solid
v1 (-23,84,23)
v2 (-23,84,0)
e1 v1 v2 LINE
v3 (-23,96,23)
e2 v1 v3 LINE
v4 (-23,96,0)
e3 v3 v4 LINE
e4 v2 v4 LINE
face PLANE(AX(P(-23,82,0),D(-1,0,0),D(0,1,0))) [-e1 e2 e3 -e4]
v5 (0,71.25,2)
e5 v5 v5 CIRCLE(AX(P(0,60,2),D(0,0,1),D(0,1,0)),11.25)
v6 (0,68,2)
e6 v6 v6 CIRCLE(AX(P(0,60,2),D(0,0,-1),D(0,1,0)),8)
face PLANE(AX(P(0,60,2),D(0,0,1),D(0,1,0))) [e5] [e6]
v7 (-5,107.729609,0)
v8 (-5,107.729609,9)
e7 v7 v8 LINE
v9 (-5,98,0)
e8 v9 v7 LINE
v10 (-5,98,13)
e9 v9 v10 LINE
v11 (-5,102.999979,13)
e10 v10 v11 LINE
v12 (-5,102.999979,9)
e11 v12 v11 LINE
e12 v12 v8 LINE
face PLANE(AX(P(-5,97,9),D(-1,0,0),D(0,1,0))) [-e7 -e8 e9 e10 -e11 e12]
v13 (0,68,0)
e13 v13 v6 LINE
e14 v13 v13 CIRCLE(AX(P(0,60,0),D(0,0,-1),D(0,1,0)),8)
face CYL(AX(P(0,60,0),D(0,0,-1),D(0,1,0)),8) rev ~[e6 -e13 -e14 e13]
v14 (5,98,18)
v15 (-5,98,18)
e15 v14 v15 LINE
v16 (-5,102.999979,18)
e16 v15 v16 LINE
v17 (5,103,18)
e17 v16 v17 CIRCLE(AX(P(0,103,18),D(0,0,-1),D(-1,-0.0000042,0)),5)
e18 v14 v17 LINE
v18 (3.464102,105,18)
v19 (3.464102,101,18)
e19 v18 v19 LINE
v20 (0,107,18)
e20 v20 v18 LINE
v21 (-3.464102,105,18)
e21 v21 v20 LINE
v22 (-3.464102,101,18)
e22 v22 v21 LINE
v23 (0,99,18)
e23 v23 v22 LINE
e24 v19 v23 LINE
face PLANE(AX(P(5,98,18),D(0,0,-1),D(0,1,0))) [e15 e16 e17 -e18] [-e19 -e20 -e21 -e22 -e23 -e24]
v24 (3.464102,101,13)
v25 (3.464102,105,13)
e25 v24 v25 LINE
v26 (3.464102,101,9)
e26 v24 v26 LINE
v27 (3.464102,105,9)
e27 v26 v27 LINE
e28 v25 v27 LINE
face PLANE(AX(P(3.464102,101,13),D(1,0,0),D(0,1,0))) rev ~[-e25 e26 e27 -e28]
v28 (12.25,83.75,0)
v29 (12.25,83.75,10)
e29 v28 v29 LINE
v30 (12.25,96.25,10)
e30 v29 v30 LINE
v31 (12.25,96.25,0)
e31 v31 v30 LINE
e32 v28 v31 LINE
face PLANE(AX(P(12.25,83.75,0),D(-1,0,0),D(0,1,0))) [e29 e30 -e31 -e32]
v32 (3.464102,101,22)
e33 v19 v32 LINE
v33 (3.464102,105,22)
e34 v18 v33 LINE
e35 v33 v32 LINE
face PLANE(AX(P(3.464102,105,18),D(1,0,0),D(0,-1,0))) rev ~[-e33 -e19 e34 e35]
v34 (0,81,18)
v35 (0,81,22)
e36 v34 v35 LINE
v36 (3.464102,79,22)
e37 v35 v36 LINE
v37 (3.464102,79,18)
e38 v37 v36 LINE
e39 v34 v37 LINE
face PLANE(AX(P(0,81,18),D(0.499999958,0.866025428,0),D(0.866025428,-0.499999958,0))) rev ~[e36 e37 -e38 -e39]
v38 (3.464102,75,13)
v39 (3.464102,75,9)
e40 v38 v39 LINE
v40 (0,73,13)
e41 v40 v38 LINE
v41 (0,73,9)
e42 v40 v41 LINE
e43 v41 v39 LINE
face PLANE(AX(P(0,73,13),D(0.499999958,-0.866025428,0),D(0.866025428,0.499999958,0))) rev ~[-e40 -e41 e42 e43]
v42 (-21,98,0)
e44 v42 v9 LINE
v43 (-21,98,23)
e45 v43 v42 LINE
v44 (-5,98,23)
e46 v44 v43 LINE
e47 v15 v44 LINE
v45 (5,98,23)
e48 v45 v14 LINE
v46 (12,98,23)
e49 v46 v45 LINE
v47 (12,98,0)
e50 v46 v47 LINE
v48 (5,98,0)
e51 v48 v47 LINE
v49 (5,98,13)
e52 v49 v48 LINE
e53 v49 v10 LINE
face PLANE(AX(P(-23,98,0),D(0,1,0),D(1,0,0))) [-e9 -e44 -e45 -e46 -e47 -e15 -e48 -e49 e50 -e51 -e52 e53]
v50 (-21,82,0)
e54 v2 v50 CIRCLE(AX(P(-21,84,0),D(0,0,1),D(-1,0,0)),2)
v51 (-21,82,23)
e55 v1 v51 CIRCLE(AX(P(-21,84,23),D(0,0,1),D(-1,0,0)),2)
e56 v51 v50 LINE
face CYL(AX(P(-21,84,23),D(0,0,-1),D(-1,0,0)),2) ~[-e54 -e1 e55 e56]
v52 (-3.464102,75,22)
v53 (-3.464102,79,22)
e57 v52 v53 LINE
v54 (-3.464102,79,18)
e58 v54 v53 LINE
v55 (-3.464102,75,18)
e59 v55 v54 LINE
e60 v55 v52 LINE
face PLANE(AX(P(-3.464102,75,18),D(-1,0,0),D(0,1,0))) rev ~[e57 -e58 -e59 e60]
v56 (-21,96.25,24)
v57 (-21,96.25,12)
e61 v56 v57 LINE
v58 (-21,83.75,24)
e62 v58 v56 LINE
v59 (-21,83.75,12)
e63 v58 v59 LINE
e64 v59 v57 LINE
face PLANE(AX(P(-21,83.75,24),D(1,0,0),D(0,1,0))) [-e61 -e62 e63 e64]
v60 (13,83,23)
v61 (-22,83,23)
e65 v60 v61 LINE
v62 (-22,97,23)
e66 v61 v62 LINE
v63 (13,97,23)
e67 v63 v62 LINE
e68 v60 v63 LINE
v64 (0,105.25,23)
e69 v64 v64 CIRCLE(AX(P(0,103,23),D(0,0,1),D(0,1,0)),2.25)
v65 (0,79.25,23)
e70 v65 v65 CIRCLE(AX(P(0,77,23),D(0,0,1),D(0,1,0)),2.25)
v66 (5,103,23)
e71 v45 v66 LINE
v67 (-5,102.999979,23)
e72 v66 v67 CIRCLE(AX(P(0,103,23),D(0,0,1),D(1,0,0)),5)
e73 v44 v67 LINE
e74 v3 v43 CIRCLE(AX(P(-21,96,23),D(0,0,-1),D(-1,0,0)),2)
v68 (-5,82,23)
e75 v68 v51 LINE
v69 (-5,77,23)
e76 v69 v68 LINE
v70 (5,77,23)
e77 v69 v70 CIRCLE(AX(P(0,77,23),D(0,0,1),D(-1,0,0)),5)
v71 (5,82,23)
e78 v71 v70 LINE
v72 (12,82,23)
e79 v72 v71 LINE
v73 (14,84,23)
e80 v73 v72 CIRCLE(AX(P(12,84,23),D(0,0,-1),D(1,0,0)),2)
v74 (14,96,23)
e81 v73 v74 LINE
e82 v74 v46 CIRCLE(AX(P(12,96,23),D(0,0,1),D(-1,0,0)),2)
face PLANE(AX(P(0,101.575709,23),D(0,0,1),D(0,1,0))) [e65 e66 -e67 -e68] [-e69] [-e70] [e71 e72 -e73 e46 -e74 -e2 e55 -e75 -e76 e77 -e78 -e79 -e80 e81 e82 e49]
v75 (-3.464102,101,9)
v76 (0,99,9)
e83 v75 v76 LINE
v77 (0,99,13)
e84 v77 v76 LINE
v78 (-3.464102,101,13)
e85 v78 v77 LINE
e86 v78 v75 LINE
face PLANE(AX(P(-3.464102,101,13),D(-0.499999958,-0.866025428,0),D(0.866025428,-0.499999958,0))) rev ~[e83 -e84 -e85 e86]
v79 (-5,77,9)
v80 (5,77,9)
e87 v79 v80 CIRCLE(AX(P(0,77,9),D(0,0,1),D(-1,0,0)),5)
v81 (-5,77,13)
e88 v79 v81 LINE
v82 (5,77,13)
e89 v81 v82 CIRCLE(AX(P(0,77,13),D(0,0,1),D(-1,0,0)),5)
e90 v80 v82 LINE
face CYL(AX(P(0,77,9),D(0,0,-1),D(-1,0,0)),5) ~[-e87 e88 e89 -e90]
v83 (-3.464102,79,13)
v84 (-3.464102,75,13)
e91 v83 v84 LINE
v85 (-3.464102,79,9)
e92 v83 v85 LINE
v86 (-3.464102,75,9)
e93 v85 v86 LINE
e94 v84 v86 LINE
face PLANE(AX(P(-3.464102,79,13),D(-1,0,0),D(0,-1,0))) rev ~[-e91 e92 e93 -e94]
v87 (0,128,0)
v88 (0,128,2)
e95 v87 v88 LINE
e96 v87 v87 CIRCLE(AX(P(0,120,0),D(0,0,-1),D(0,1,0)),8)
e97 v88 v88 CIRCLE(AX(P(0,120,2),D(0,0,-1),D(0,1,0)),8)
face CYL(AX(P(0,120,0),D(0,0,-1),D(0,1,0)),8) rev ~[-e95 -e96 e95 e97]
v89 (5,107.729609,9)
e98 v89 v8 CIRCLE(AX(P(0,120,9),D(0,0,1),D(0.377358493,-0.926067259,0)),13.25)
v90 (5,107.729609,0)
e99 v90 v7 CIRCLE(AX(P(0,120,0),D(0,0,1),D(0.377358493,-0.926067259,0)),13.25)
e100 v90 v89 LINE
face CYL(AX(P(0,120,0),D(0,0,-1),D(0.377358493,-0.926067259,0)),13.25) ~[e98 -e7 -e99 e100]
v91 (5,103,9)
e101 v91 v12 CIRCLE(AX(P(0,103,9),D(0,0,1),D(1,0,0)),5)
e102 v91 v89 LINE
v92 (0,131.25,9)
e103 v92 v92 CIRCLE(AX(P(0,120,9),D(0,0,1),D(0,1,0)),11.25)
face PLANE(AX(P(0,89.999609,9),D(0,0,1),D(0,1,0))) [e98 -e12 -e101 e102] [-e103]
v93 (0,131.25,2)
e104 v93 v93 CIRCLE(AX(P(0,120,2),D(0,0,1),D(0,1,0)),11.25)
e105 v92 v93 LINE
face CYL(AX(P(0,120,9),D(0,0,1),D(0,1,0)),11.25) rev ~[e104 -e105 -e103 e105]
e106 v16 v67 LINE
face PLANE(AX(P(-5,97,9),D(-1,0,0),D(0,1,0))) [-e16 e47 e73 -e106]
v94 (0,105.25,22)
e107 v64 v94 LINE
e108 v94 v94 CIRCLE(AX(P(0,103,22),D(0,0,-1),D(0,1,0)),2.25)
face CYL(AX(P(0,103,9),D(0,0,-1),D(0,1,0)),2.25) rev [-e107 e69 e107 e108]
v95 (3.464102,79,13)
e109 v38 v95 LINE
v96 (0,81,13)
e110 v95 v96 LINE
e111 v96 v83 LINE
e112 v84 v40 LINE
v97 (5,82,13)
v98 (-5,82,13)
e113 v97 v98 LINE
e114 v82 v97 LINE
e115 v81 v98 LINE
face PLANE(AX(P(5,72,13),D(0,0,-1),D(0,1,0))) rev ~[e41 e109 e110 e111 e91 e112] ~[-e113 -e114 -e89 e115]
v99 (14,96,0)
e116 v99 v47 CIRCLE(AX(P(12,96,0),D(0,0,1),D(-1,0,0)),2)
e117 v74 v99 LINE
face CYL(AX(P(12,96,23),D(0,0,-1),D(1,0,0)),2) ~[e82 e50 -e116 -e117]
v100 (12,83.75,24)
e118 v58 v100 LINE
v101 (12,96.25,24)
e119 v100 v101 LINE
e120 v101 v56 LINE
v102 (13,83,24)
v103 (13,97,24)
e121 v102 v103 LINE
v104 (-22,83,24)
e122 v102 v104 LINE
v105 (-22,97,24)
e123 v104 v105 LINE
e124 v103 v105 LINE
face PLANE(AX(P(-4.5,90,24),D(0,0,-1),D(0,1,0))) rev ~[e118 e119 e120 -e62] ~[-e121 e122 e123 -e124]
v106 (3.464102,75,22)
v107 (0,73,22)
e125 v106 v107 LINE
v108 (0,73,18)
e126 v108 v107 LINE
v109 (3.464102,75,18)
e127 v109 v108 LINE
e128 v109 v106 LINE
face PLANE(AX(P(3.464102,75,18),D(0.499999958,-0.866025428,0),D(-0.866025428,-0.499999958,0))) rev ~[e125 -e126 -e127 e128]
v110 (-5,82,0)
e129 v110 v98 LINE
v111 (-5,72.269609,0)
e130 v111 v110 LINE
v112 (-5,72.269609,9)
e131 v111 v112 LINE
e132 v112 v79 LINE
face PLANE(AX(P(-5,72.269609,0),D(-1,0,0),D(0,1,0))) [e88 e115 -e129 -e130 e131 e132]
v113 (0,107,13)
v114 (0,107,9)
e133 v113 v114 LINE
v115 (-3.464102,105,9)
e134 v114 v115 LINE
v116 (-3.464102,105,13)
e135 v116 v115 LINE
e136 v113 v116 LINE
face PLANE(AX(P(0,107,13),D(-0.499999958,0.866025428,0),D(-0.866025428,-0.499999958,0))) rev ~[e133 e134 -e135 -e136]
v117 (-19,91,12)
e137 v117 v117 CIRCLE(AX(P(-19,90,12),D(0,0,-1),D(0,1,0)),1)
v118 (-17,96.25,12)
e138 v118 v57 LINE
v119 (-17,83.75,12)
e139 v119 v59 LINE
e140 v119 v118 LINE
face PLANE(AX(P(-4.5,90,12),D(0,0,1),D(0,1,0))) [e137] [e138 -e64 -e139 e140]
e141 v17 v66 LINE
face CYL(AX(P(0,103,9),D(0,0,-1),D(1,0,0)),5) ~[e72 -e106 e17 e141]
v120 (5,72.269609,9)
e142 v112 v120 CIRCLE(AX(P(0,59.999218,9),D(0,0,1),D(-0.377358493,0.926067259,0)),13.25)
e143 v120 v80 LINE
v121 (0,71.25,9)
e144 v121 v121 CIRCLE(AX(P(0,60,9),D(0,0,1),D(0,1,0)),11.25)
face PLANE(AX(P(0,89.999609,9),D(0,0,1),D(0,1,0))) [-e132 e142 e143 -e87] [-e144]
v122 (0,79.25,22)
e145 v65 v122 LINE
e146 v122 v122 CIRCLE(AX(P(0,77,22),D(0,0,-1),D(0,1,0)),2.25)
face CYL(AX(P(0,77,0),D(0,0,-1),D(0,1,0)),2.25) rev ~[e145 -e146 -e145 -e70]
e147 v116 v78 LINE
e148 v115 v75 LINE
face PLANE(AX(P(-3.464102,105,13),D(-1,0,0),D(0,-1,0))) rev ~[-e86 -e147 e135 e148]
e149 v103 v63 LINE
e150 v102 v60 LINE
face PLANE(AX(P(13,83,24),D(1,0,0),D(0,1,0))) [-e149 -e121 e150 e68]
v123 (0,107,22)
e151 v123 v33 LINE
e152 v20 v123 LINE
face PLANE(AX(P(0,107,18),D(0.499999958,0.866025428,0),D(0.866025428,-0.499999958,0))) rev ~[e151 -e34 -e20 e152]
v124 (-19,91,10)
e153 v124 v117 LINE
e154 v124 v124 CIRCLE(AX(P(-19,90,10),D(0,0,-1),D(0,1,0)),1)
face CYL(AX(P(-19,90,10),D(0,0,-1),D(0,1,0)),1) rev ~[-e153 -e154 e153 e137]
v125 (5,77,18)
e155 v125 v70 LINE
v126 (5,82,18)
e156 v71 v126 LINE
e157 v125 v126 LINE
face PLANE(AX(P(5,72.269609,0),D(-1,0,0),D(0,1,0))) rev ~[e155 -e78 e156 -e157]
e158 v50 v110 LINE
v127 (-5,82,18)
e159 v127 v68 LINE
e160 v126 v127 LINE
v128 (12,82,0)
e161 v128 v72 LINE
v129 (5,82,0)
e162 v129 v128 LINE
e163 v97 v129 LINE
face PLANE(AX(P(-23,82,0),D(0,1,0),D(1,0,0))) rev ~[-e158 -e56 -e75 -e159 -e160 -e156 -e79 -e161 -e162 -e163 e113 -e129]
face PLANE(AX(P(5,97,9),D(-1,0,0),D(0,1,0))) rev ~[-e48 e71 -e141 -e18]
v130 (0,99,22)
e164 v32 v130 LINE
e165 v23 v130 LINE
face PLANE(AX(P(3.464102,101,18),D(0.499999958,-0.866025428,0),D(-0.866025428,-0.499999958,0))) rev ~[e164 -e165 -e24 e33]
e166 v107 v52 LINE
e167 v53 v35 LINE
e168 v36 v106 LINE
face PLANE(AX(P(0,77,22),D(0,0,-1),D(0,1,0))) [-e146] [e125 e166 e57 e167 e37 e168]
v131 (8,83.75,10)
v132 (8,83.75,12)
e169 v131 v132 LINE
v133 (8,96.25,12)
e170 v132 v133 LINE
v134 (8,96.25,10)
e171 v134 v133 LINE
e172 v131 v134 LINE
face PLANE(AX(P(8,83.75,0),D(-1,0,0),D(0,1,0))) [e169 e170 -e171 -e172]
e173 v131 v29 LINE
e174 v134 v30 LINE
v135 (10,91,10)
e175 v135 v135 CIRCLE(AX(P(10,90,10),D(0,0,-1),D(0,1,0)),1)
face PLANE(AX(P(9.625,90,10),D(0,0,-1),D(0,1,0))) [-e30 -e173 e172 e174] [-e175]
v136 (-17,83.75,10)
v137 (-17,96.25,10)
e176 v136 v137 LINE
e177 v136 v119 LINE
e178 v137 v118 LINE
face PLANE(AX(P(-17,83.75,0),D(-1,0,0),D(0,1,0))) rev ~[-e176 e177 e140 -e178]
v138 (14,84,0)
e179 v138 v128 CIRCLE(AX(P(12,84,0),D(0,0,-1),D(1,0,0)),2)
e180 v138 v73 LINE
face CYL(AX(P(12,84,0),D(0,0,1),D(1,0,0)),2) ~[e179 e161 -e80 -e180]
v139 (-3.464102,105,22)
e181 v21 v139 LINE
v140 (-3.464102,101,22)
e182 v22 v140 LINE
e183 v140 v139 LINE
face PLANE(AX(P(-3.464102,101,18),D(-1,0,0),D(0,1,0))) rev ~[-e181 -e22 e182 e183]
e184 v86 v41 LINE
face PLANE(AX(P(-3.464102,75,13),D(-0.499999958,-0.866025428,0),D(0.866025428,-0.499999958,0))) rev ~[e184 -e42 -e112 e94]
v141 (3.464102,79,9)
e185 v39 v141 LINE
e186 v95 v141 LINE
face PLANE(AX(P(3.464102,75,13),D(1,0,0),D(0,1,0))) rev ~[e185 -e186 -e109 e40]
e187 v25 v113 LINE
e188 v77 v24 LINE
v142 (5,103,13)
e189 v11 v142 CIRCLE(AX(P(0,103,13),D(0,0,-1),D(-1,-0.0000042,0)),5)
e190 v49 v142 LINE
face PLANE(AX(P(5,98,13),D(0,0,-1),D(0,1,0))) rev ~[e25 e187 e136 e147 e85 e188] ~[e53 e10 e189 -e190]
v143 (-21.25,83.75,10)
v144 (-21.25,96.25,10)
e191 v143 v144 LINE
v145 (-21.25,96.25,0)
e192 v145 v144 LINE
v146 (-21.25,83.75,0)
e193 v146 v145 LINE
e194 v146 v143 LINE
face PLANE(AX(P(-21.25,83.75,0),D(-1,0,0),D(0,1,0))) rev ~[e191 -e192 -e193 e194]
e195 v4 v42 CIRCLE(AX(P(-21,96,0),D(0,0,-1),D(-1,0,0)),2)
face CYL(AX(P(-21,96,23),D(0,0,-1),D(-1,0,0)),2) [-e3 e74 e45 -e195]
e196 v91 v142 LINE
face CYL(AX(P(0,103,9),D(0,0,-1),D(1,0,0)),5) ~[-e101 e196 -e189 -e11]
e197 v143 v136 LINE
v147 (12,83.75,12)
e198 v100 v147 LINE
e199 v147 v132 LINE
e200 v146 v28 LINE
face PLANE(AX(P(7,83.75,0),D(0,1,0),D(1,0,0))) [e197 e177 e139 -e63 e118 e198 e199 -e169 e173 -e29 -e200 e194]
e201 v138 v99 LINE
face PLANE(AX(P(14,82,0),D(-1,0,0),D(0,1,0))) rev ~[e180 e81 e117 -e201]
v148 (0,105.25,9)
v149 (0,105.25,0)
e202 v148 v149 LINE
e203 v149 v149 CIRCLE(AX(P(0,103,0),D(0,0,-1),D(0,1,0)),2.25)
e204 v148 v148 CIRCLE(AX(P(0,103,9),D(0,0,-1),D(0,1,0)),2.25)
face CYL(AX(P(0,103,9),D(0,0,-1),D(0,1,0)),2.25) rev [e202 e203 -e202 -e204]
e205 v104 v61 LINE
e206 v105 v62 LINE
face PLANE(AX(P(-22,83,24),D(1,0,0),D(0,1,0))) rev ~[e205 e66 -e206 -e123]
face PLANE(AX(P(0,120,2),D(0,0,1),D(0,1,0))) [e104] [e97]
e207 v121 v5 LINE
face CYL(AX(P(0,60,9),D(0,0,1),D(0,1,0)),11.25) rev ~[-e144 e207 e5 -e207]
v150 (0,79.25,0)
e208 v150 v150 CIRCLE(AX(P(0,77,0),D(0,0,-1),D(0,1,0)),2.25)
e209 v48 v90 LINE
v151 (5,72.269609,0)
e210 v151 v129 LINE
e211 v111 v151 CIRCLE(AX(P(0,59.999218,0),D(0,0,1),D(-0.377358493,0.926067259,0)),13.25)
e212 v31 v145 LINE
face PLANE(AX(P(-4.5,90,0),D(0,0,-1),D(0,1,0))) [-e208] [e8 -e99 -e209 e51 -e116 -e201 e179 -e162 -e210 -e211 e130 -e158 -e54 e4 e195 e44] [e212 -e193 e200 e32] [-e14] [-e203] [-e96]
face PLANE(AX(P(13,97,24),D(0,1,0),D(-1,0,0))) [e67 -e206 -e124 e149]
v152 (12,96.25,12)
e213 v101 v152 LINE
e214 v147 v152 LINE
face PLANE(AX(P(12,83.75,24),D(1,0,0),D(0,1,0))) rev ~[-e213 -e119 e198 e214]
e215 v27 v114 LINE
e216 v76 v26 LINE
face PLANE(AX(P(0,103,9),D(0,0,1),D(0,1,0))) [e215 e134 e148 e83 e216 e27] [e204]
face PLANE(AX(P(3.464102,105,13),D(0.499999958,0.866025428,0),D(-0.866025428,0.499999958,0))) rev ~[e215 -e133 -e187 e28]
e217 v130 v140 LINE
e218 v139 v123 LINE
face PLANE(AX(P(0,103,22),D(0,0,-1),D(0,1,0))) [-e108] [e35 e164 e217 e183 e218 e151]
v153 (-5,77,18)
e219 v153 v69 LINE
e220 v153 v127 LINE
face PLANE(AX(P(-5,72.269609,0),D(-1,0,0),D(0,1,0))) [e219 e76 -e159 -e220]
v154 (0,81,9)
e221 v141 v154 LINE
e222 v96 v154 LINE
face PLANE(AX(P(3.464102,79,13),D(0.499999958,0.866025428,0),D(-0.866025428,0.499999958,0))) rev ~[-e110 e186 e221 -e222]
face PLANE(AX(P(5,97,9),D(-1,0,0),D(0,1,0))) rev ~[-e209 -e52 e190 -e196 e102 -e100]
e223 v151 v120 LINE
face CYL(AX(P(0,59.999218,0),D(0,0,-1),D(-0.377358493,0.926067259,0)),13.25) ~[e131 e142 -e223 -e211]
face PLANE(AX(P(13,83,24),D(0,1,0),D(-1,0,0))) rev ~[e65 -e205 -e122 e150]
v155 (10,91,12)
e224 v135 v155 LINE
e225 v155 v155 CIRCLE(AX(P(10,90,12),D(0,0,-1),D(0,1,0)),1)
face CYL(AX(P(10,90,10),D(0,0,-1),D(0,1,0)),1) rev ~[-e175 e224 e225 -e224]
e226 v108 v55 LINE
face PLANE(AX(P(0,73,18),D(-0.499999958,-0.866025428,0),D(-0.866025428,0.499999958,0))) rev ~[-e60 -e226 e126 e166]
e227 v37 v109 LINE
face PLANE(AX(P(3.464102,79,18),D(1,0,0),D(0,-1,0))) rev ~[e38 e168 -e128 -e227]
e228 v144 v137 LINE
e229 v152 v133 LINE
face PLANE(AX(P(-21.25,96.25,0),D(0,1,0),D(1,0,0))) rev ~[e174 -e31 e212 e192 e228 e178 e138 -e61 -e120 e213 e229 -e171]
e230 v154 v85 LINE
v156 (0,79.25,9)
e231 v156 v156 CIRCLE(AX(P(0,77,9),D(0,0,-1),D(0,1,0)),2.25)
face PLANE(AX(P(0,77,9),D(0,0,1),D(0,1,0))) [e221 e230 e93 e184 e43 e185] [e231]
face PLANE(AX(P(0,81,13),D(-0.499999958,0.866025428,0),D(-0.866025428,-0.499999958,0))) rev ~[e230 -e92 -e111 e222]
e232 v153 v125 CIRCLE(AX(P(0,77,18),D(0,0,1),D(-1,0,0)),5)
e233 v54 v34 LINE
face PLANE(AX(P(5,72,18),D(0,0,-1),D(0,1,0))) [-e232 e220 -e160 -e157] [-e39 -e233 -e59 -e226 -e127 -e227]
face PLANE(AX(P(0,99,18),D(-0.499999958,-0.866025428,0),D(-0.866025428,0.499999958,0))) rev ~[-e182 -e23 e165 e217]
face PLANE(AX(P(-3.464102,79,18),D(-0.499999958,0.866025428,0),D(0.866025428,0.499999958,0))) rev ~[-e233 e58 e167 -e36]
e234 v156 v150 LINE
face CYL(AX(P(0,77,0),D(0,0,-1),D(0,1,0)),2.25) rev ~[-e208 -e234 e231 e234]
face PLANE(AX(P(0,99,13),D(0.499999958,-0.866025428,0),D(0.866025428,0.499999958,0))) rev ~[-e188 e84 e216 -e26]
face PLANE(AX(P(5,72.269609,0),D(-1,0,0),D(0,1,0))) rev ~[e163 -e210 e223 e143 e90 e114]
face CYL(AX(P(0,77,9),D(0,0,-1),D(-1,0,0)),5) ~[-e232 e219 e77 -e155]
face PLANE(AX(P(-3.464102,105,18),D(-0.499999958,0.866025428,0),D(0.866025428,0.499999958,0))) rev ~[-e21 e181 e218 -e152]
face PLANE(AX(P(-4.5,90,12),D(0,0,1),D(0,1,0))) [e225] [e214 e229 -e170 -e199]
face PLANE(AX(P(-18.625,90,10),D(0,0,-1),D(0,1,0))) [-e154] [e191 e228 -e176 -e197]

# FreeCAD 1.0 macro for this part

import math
import FreeCAD as App
import Part
import Sketcher
from FreeCAD import Vector
Q = App.Units.Quantity


def edges_at(feature, points):
    """Names of the edges that pass closest to the given points."""
    edges = feature.Shape.Edges
    near = lambda p: min(range(len(edges)), key=lambda i: edges[i].distToShape(Part.Vertex(*p))[0])
    return sorted({f"Edge{near(p) + 1}" for p in points})


def add_polygon(sketch, points):
    """Adds a closed chain of lines whose ends are joined by coincident constraints."""
    first, n = sketch.GeometryCount, len(points)
    for a, b in zip(points, points[1:] + points[:1]):
        sketch.addGeometry(Part.LineSegment(App.Vector(*a, 0), App.Vector(*b, 0)), False)
    for i in range(n):
        sketch.addConstraint(Sketcher.Constraint("Coincident", first + i, 2, first + (i + 1) % n, 1))

doc = App.newDocument("Part")
body = doc.addObject("PartDesign::Body", "Body")

# Sketch on XY plane
sketch1 = body.newObject("Sketcher::SketchObject", "Sketch")
sketch1.AttachmentSupport = (doc.getObject("XY_Plane"), [""])
sketch1.MapMode = "FlatFace"
sketch1.addGeometry(Part.ArcOfCircle(Part.Circle(Vector(0, 0, 0), Vector(0, 0, 1), 13), math.radians(22), math.radians(338)), False)
sketch1.addGeometry(Part.LineSegment(Vector(12, -5, 0), Vector(48, -5, 0)), False)
sketch1.addGeometry(Part.ArcOfCircle(Part.Circle(Vector(60, 0, 0), Vector(0, 0, 1), 13), math.radians(-158), math.radians(158)), False)
sketch1.addGeometry(Part.LineSegment(Vector(48, 5, 0), Vector(12, 5, 0)), False)
sketch1.addConstraint(Sketcher.Constraint("Coincident", 0, 2, 1, 1))
sketch1.addConstraint(Sketcher.Constraint("Coincident", 1, 2, 2, 1))
sketch1.addConstraint(Sketcher.Constraint("Coincident", 2, 2, 3, 1))
sketch1.addConstraint(Sketcher.Constraint("Coincident", 3, 2, 0, 1))
sketch1.addConstraint(Sketcher.Constraint("Horizontal", 1))
sketch1.addConstraint(Sketcher.Constraint("Horizontal", 3))
sketch1.addConstraint(Sketcher.Constraint("Equal", 0, 2))
sketch1.addConstraint(Sketcher.Constraint("Symmetric", 1, 2, 2, 2, -1))
sketch1.addConstraint(Sketcher.Constraint("PointOnObject", 0, 3, -1))
sketch1.addConstraint(Sketcher.Constraint("Radius", 0, Q("13.25 mm")))
sketch1.addConstraint(Sketcher.Constraint("DistanceX", -1, 1, 2, 3, Q("60 mm")))
sketch1.addConstraint(Sketcher.Constraint("DistanceY", 0, 2, -1, 1, Q("5 mm")))
sketch1.addConstraint(Sketcher.Constraint("DistanceX", 1, 1, 1, 2, Q("35.46 mm")))
pad1 = body.newObject("PartDesign::Pad", "Pad")
pad1.Profile = sketch1
pad1.Length = 9

# Sketch on XY plane
sketch2 = body.newObject("Sketcher::SketchObject", "Sketch001")
sketch2.AttachmentSupport = (doc.getObject("XY_Plane"), [""])
sketch2.MapMode = "FlatFace"
sketch2.AttachmentOffset = App.Placement(Vector(0, 0, 9), App.Rotation())
sketch2.addGeometry(Part.Circle(Vector(0, 0, 0), Vector(0, 0, 1), 11), False)
sketch2.addGeometry(Part.Circle(Vector(60, 0, 0), Vector(0, 0, 1), 11), False)
sketch2.addConstraint(Sketcher.Constraint("Coincident", 0, 3, -1, 1))
sketch2.addConstraint(Sketcher.Constraint("Equal", 0, 1))
sketch2.addConstraint(Sketcher.Constraint("PointOnObject", 1, 3, -1))
sketch2.addConstraint(Sketcher.Constraint("Diameter", 0, Q("22.5 mm")))
sketch2.addConstraint(Sketcher.Constraint("DistanceX", -1, 1, 1, 3, Q("60 mm")))
pocket1 = body.newObject("PartDesign::Pocket", "Pocket")
pocket1.Profile = sketch2
pocket1.Length = 7

# Sketch on XY plane
sketch3 = body.newObject("Sketcher::SketchObject", "Sketch002")
sketch3.AttachmentSupport = (doc.getObject("XY_Plane"), [""])
sketch3.MapMode = "FlatFace"
sketch3.addGeometry(Part.Circle(Vector(0, 0, 0), Vector(0, 0, 1), 8), False)
sketch3.addGeometry(Part.Circle(Vector(60, 0, 0), Vector(0, 0, 1), 8), False)
sketch3.addConstraint(Sketcher.Constraint("Coincident", 0, 3, -1, 1))
sketch3.addConstraint(Sketcher.Constraint("Equal", 0, 1))
sketch3.addConstraint(Sketcher.Constraint("PointOnObject", 1, 3, -1))
sketch3.addConstraint(Sketcher.Constraint("Diameter", 0, Q("16 mm")))
sketch3.addConstraint(Sketcher.Constraint("DistanceX", -1, 1, 1, 3, Q("60 mm")))
pocket2 = body.newObject("PartDesign::Pocket", "Pocket001")
pocket2.Profile = sketch3
pocket2.Length = 5
pocket2.Reversed = True

# Sketch on XY plane
sketch4 = body.newObject("Sketcher::SketchObject", "Sketch003")
sketch4.AttachmentSupport = (doc.getObject("XY_Plane"), [""])
sketch4.MapMode = "FlatFace"
add_polygon(sketch4, [(22, -14), (22, 23), (38, 23), (38, -14)])  # lines 0-3
sketch4.addConstraint(Sketcher.Constraint("Vertical", 0))
sketch4.addConstraint(Sketcher.Constraint("Horizontal", 1))
sketch4.addConstraint(Sketcher.Constraint("Vertical", 2))
sketch4.addConstraint(Sketcher.Constraint("Horizontal", 3))
sketch4.addConstraint(Sketcher.Constraint("DistanceX", 1, 1, 1, 2, Q("16 mm")))
sketch4.addConstraint(Sketcher.Constraint("DistanceY", 0, 1, 0, 2, Q("37 mm")))
sketch4.addConstraint(Sketcher.Constraint("DistanceX", -1, 1, 0, 2, Q("22 mm")))
sketch4.addConstraint(Sketcher.Constraint("DistanceY", -1, 1, 0, 2, Q("23 mm")))
pad2 = body.newObject("PartDesign::Pad", "Pad001")
pad2.Profile = sketch4
pad2.Length = 24

# Sketch on XY plane
sketch5 = body.newObject("Sketcher::SketchObject", "Sketch004")
sketch5.AttachmentSupport = (doc.getObject("XY_Plane"), [""])
sketch5.MapMode = "FlatFace"
add_polygon(sketch5, [(22, 16), (22, 23), (38, 23), (38, 16)])  # lines 0-3
add_polygon(sketch5, [(22, -14), (22, -7), (38, -7), (38, -14)])  # lines 4-7
sketch5.addConstraint(Sketcher.Constraint("Vertical", 0))
sketch5.addConstraint(Sketcher.Constraint("Horizontal", 1))
sketch5.addConstraint(Sketcher.Constraint("Vertical", 2))
sketch5.addConstraint(Sketcher.Constraint("Horizontal", 3))
sketch5.addConstraint(Sketcher.Constraint("Vertical", 4))
sketch5.addConstraint(Sketcher.Constraint("Horizontal", 5))
sketch5.addConstraint(Sketcher.Constraint("Vertical", 6))
sketch5.addConstraint(Sketcher.Constraint("Horizontal", 7))
sketch5.addConstraint(Sketcher.Constraint("Vertical", 3, 2, 4, 2))
sketch5.addConstraint(Sketcher.Constraint("Vertical", 2, 2, 5, 2))
sketch5.addConstraint(Sketcher.Constraint("Equal", 2, 4))
sketch5.addConstraint(Sketcher.Constraint("DistanceX", 1, 1, 1, 2, Q("16 mm")))
sketch5.addConstraint(Sketcher.Constraint("DistanceY", 0, 1, 0, 2, Q("7 mm")))
sketch5.addConstraint(Sketcher.Constraint("DistanceX", -1, 1, 0, 2, Q("22 mm")))
sketch5.addConstraint(Sketcher.Constraint("DistanceY", -1, 1, 0, 2, Q("23 mm")))
sketch5.addConstraint(Sketcher.Constraint("DistanceY", 4, 2, -1, 1, Q("7 mm")))
pad3 = body.newObject("PartDesign::Pad", "Pad002")
pad3.Profile = sketch5
pad3.Length = 12

# Sketch on XY plane
sketch6 = body.newObject("Sketcher::SketchObject", "Sketch005")
sketch6.AttachmentSupport = (doc.getObject("XY_Plane"), [""])
sketch6.MapMode = "FlatFace"
add_polygon(sketch6, [(24, -12), (24, -7), (36, -7), (36, -12)])  # lines 0-3
add_polygon(sketch6, [(24, 16), (24, 21), (36, 21), (36, 16)])  # lines 4-7
sketch6.addConstraint(Sketcher.Constraint("Vertical", 0))
sketch6.addConstraint(Sketcher.Constraint("Horizontal", 1))
sketch6.addConstraint(Sketcher.Constraint("Vertical", 2))
sketch6.addConstraint(Sketcher.Constraint("Horizontal", 3))
sketch6.addConstraint(Sketcher.Constraint("Vertical", 4))
sketch6.addConstraint(Sketcher.Constraint("Horizontal", 5))
sketch6.addConstraint(Sketcher.Constraint("Vertical", 6))
sketch6.addConstraint(Sketcher.Constraint("Horizontal", 7))
sketch6.addConstraint(Sketcher.Constraint("Vertical", 3, 2, 4, 2))
sketch6.addConstraint(Sketcher.Constraint("Vertical", 2, 2, 5, 2))
sketch6.addConstraint(Sketcher.Constraint("Equal", 2, 4))
sketch6.addConstraint(Sketcher.Constraint("DistanceX", 1, 1, 1, 2, Q("12.5 mm")))
sketch6.addConstraint(Sketcher.Constraint("DistanceY", 0, 2, -1, 1, Q("7 mm")))
sketch6.addConstraint(Sketcher.Constraint("DistanceY", -1, 1, 6, 2, Q("16 mm")))
sketch6.addConstraint(Sketcher.Constraint("DistanceY", 0, 1, 0, 2, Q("5.25 mm")))
sketch6.addConstraint(Sketcher.Constraint("DistanceX", -1, 1, 0, 2, Q("23.75 mm")))
pocket3 = body.newObject("PartDesign::Pocket", "Pocket002")
pocket3.Profile = sketch6
pocket3.Length = 10
pocket3.Reversed = True

# Sketch on XY plane
sketch7 = body.newObject("Sketcher::SketchObject", "Sketch006")
sketch7.AttachmentSupport = (doc.getObject("XY_Plane"), [""])
sketch7.MapMode = "FlatFace"
sketch7.AttachmentOffset = App.Placement(Vector(0, 0, 10), App.Rotation())
sketch7.addGeometry(Part.Circle(Vector(30, 19, 0), Vector(0, 0, 1), 1), False)
sketch7.addGeometry(Part.Circle(Vector(30, -10, 0), Vector(0, 0, 1), 1), False)
sketch7.addConstraint(Sketcher.Constraint("Equal", 0, 1))
sketch7.addConstraint(Sketcher.Constraint("Vertical", 0, 3, 1, 3))
sketch7.addConstraint(Sketcher.Constraint("Diameter", 0, Q("2 mm")))
sketch7.addConstraint(Sketcher.Constraint("DistanceX", -1, 1, 0, 3, Q("30 mm")))
sketch7.addConstraint(Sketcher.Constraint("DistanceY", -1, 1, 0, 3, Q("19 mm")))
sketch7.addConstraint(Sketcher.Constraint("DistanceY", 1, 3, -1, 1, Q("10 mm")))
pocket4 = body.newObject("PartDesign::Pocket", "Pocket003")
pocket4.Profile = sketch7
pocket4.Type = "TwoLengths"
pocket4.Length = 4
pocket4.Length2 = 5
pocket4.Reversed = True

# Sketch on XY plane
sketch8 = body.newObject("Sketcher::SketchObject", "Sketch007")
sketch8.AttachmentSupport = (doc.getObject("XY_Plane"), [""])
sketch8.MapMode = "FlatFace"
add_polygon(sketch8, [(24, -8), (24, 17), (36, 17), (36, -8)])  # lines 0-3
sketch8.addConstraint(Sketcher.Constraint("Vertical", 0))
sketch8.addConstraint(Sketcher.Constraint("Horizontal", 1))
sketch8.addConstraint(Sketcher.Constraint("Vertical", 2))
sketch8.addConstraint(Sketcher.Constraint("Horizontal", 3))
sketch8.addConstraint(Sketcher.Constraint("DistanceY", 0, 1, 0, 2, Q("25 mm")))
sketch8.addConstraint(Sketcher.Constraint("DistanceX", 1, 1, 1, 2, Q("12.5 mm")))
sketch8.addConstraint(Sketcher.Constraint("DistanceY", -1, 1, 0, 2, Q("17 mm")))
sketch8.addConstraint(Sketcher.Constraint("DistanceX", -1, 1, 0, 2, Q("23.75 mm")))
pocket5 = body.newObject("PartDesign::Pocket", "Pocket004")
pocket5.Profile = sketch8
pocket5.Length = 50
pocket5.Reversed = True

# Sketch on XY plane
sketch9 = body.newObject("Sketcher::SketchObject", "Sketch008")
sketch9.AttachmentSupport = (doc.getObject("XY_Plane"), [""])
sketch9.MapMode = "FlatFace"
sketch9.AttachmentOffset = App.Placement(Vector(0, 0, 9), App.Rotation())
sketch9.addGeometry(Part.ArcOfCircle(Part.Circle(Vector(43, 0, 0), Vector(0, 0, 1), 5), math.radians(-90), math.radians(90)), False)
sketch9.addGeometry(Part.LineSegment(Vector(43, 5, 0), Vector(37, 5, 0)), False)
sketch9.addGeometry(Part.LineSegment(Vector(37, 5, 0), Vector(37, -5, 0)), False)
sketch9.addGeometry(Part.LineSegment(Vector(37, -5, 0), Vector(43, -5, 0)), False)
sketch9.addGeometry(Part.Circle(Vector(43, 0, 0), Vector(0, 0, 1), 2.2), False)
sketch9.addGeometry(Part.ArcOfCircle(Part.Circle(Vector(17, 0, 0), Vector(0, 0, 1), 5), math.radians(90), math.radians(270)), False)
sketch9.addGeometry(Part.LineSegment(Vector(17, -5, 0), Vector(23, -5, 0)), False)
sketch9.addGeometry(Part.LineSegment(Vector(23, -5, 0), Vector(23, 5, 0)), False)
sketch9.addGeometry(Part.LineSegment(Vector(23, 5, 0), Vector(17, 5, 0)), False)
sketch9.addGeometry(Part.Circle(Vector(17, 0, 0), Vector(0, 0, 1), 2.2), False)
sketch9.addConstraint(Sketcher.Constraint("Coincident", 0, 2, 1, 1))
sketch9.addConstraint(Sketcher.Constraint("Coincident", 1, 2, 2, 1))
sketch9.addConstraint(Sketcher.Constraint("Coincident", 2, 2, 3, 1))
sketch9.addConstraint(Sketcher.Constraint("Tangent", 3, 2, 0, 1))
sketch9.addConstraint(Sketcher.Constraint("Tangent", 5, 2, 6, 1))
sketch9.addConstraint(Sketcher.Constraint("Coincident", 6, 2, 7, 1))
sketch9.addConstraint(Sketcher.Constraint("Coincident", 7, 2, 8, 1))
sketch9.addConstraint(Sketcher.Constraint("Tangent", 8, 2, 5, 1))
sketch9.addConstraint(Sketcher.Constraint("Horizontal", 1))
sketch9.addConstraint(Sketcher.Constraint("Vertical", 2))
sketch9.addConstraint(Sketcher.Constraint("Horizontal", 3))
sketch9.addConstraint(Sketcher.Constraint("Horizontal", 6))
sketch9.addConstraint(Sketcher.Constraint("Vertical", 7))
sketch9.addConstraint(Sketcher.Constraint("Horizontal", 8))
sketch9.addConstraint(Sketcher.Constraint("Coincident", 4, 3, 0, 3))
sketch9.addConstraint(Sketcher.Constraint("Coincident", 9, 3, 5, 3))
sketch9.addConstraint(Sketcher.Constraint("Equal", 0, 5))
sketch9.addConstraint(Sketcher.Constraint("Equal", 4, 9))
sketch9.addConstraint(Sketcher.Constraint("PointOnObject", 0, 3, -1))
sketch9.addConstraint(Sketcher.Constraint("PointOnObject", 5, 3, -1))
sketch9.addConstraint(Sketcher.Constraint("Equal", 3, 6))
sketch9.addConstraint(Sketcher.Constraint("Radius", 0, Q("5 mm")))
sketch9.addConstraint(Sketcher.Constraint("Diameter", 4, Q("4.5 mm")))
sketch9.addConstraint(Sketcher.Constraint("DistanceX", 3, 1, 3, 2, Q("6 mm")))
sketch9.addConstraint(Sketcher.Constraint("DistanceX", -1, 1, 0, 3, Q("43 mm")))
sketch9.addConstraint(Sketcher.Constraint("DistanceX", -1, 1, 5, 3, Q("17 mm")))
sketch9.addConstraint(Sketcher.Constraint("DistanceX", 1, 2, 1, 1, Q("5.999979 mm")))
pad4 = body.newObject("PartDesign::Pad", "Pad003")
pad4.Profile = sketch9
pad4.Length = 14

# Sketch on XY plane
sketch10 = body.newObject("Sketcher::SketchObject", "Sketch009")
sketch10.AttachmentSupport = (doc.getObject("XY_Plane"), [""])
sketch10.MapMode = "FlatFace"
sketch10.addGeometry(Part.Circle(Vector(17, 0, 0), Vector(0, 0, 1), 2.2), False)
sketch10.addGeometry(Part.Circle(Vector(43, 0, 0), Vector(0, 0, 1), 2.2), False)
sketch10.addConstraint(Sketcher.Constraint("Equal", 0, 1))
sketch10.addConstraint(Sketcher.Constraint("PointOnObject", 0, 3, -1))
sketch10.addConstraint(Sketcher.Constraint("PointOnObject", 1, 3, -1))
sketch10.addConstraint(Sketcher.Constraint("Diameter", 0, Q("4.5 mm")))
sketch10.addConstraint(Sketcher.Constraint("DistanceX", -1, 1, 0, 3, Q("17 mm")))
sketch10.addConstraint(Sketcher.Constraint("DistanceX", -1, 1, 1, 3, Q("43 mm")))
pocket6 = body.newObject("PartDesign::Pocket", "Pocket005")
pocket6.Profile = sketch10
pocket6.Length = 10
pocket6.Reversed = True

# Sketch on XY plane
sketch11 = body.newObject("Sketcher::SketchObject", "Sketch010")
sketch11.AttachmentSupport = (doc.getObject("XY_Plane"), [""])
sketch11.MapMode = "FlatFace"
sketch11.AttachmentOffset = App.Placement(Vector(0, 0, 24), App.Rotation())
add_polygon(sketch11, [(22, 23), (22, -14), (38, -14), (38, 23)])  # lines 0-3
add_polygon(sketch11, [(37, -13), (23, -13), (23, 22), (37, 22)])  # lines 4-7
sketch11.addConstraint(Sketcher.Constraint("Vertical", 0))
sketch11.addConstraint(Sketcher.Constraint("Horizontal", 1))
sketch11.addConstraint(Sketcher.Constraint("Vertical", 2))
sketch11.addConstraint(Sketcher.Constraint("Horizontal", 3))
sketch11.addConstraint(Sketcher.Constraint("Horizontal", 4))
sketch11.addConstraint(Sketcher.Constraint("Vertical", 5))
sketch11.addConstraint(Sketcher.Constraint("Horizontal", 6))
sketch11.addConstraint(Sketcher.Constraint("Vertical", 7))
sketch11.addConstraint(Sketcher.Constraint("DistanceX", 1, 1, 1, 2, Q("16 mm")))
sketch11.addConstraint(Sketcher.Constraint("DistanceX", 4, 2, 4, 1, Q("14 mm")))
sketch11.addConstraint(Sketcher.Constraint("DistanceY", 0, 2, 0, 1, Q("37 mm")))
sketch11.addConstraint(Sketcher.Constraint("DistanceY", 5, 1, 5, 2, Q("35 mm")))
sketch11.addConstraint(Sketcher.Constraint("DistanceX", -1, 1, 0, 2, Q("22 mm")))
sketch11.addConstraint(Sketcher.Constraint("DistanceY", 0, 2, -1, 1, Q("14 mm")))
sketch11.addConstraint(Sketcher.Constraint("DistanceX", -1, 1, 4, 2, Q("23 mm")))
sketch11.addConstraint(Sketcher.Constraint("DistanceY", 4, 2, -1, 1, Q("13 mm")))
pocket7 = body.newObject("PartDesign::Pocket", "Pocket006")
pocket7.Profile = sketch11
pocket7.Length = 1

# Sketch on XZ plane
sketch12 = body.newObject("Sketcher::SketchObject", "Sketch011")
sketch12.AttachmentSupport = (doc.getObject("XZ_Plane"), [""])
sketch12.MapMode = "FlatFace"
sketch12.AttachmentOffset = App.Placement(Vector(0, 0, 5), App.Rotation())
add_polygon(sketch12, [(12, 18), (12, 13), (22, 13), (22, 18)])  # lines 0-3
add_polygon(sketch12, [(38, 18), (38, 13), (48, 13), (48, 18)])  # lines 4-7
sketch12.addConstraint(Sketcher.Constraint("Vertical", 0))
sketch12.addConstraint(Sketcher.Constraint("Horizontal", 1))
sketch12.addConstraint(Sketcher.Constraint("Vertical", 2))
sketch12.addConstraint(Sketcher.Constraint("Horizontal", 3))
sketch12.addConstraint(Sketcher.Constraint("Vertical", 4))
sketch12.addConstraint(Sketcher.Constraint("Horizontal", 5))
sketch12.addConstraint(Sketcher.Constraint("Vertical", 6))
sketch12.addConstraint(Sketcher.Constraint("Horizontal", 7))
sketch12.addConstraint(Sketcher.Constraint("Horizontal", 1, 2, 4, 2))
sketch12.addConstraint(Sketcher.Constraint("Horizontal", 3, 2, 6, 2))
sketch12.addConstraint(Sketcher.Constraint("Equal", 3, 5))
sketch12.addConstraint(Sketcher.Constraint("DistanceX", 1, 1, 1, 2, Q("10 mm")))
sketch12.addConstraint(Sketcher.Constraint("DistanceY", 0, 2, 0, 1, Q("5 mm")))
sketch12.addConstraint(Sketcher.Constraint("DistanceX", -1, 1, 0, 2, Q("12 mm")))
sketch12.addConstraint(Sketcher.Constraint("DistanceY", -1, 1, 0, 2, Q("13 mm")))
sketch12.addConstraint(Sketcher.Constraint("DistanceX", -1, 1, 4, 2, Q("38 mm")))
pocket8 = body.newObject("PartDesign::Pocket", "Pocket007")
pocket8.Profile = sketch12
pocket8.Length = 10

# Sketch on XY plane
sketch13 = body.newObject("Sketcher::SketchObject", "Sketch012")
sketch13.AttachmentSupport = (doc.getObject("XY_Plane"), [""])
sketch13.MapMode = "FlatFace"
sketch13.AttachmentOffset = App.Placement(Vector(0, 0, 13), App.Rotation())
add_polygon(sketch13, [(13, 0), (15, -3.5), (19, -3.5), (21, 0), (19, 3.5), (15, 3.5)])  # lines 0-5
add_polygon(sketch13, [(39, 0), (41, -3.5), (45, -3.5), (47, 0), (45, 3.5), (41, 3.5)])  # lines 6-11
sketch13.addConstraint(Sketcher.Constraint("Horizontal", 1))
sketch13.addConstraint(Sketcher.Constraint("Horizontal", 4))
sketch13.addConstraint(Sketcher.Constraint("Horizontal", 7))
sketch13.addConstraint(Sketcher.Constraint("Horizontal", 10))
sketch13.addConstraint(Sketcher.Constraint("Symmetric", 1, 2, 3, 2, -1))
sketch13.addConstraint(Sketcher.Constraint("Symmetric", 7, 2, 9, 2, -1))
sketch13.addConstraint(Sketcher.Constraint("PointOnObject", 2, 2, -1))
sketch13.addConstraint(Sketcher.Constraint("PointOnObject", 5, 2, -1))
sketch13.addConstraint(Sketcher.Constraint("PointOnObject", 8, 2, -1))
sketch13.addConstraint(Sketcher.Constraint("PointOnObject", 11, 2, -1))
sketch13.addConstraint(Sketcher.Constraint("Parallel", 0, 3))
sketch13.addConstraint(Sketcher.Constraint("Parallel", 2, 5))
sketch13.addConstraint(Sketcher.Constraint("Parallel", 3, 6))
sketch13.addConstraint(Sketcher.Constraint("Parallel", 5, 8))
sketch13.addConstraint(Sketcher.Constraint("Parallel", 8, 11))
sketch13.addConstraint(Sketcher.Constraint("Horizontal", 1, 2, 6, 2))
sketch13.addConstraint(Sketcher.Constraint("Equal", 4, 7))
sketch13.addConstraint(Sketcher.Constraint("DistanceX", 1, 1, 1, 2, Q("4 mm")))
sketch13.addConstraint(Sketcher.Constraint("Angle", 0, Q("-60.000003 deg")))
sketch13.addConstraint(Sketcher.Constraint("Distance", 0, Q("4 mm")))
sketch13.addConstraint(Sketcher.Constraint("DistanceX", -1, 1, 0, 2, Q("15 mm")))
sketch13.addConstraint(Sketcher.Constraint("DistanceX", -1, 1, 6, 2, Q("41 mm")))
pocket9 = body.newObject("PartDesign::Pocket", "Pocket008")
pocket9.Profile = sketch13
pocket9.Length = 4

# Sketch on XY plane
sketch14 = body.newObject("Sketcher::SketchObject", "Sketch013")
sketch14.AttachmentSupport = (doc.getObject("XY_Plane"), [""])
sketch14.MapMode = "FlatFace"
sketch14.AttachmentOffset = App.Placement(Vector(0, 0, 18), App.Rotation())
add_polygon(sketch14, [(13, 0), (15, 3.5), (19, 3.5), (21, 0), (19, -3.5), (15, -3.5)])  # lines 0-5
add_polygon(sketch14, [(39, 0), (41, 3.5), (45, 3.5), (47, 0), (45, -3.5), (41, -3.5)])  # lines 6-11
sketch14.addConstraint(Sketcher.Constraint("Horizontal", 1))
sketch14.addConstraint(Sketcher.Constraint("Horizontal", 4))
sketch14.addConstraint(Sketcher.Constraint("Horizontal", 7))
sketch14.addConstraint(Sketcher.Constraint("Horizontal", 10))
sketch14.addConstraint(Sketcher.Constraint("Symmetric", 1, 2, 3, 2, -1))
sketch14.addConstraint(Sketcher.Constraint("Symmetric", 7, 2, 9, 2, -1))
sketch14.addConstraint(Sketcher.Constraint("PointOnObject", 2, 2, -1))
sketch14.addConstraint(Sketcher.Constraint("PointOnObject", 5, 2, -1))
sketch14.addConstraint(Sketcher.Constraint("PointOnObject", 8, 2, -1))
sketch14.addConstraint(Sketcher.Constraint("PointOnObject", 11, 2, -1))
sketch14.addConstraint(Sketcher.Constraint("Parallel", 0, 3))
sketch14.addConstraint(Sketcher.Constraint("Parallel", 2, 5))
sketch14.addConstraint(Sketcher.Constraint("Parallel", 3, 6))
sketch14.addConstraint(Sketcher.Constraint("Parallel", 5, 8))
sketch14.addConstraint(Sketcher.Constraint("Parallel", 8, 11))
sketch14.addConstraint(Sketcher.Constraint("Horizontal", 1, 2, 6, 2))
sketch14.addConstraint(Sketcher.Constraint("Equal", 4, 7))
sketch14.addConstraint(Sketcher.Constraint("DistanceX", 1, 1, 1, 2, Q("4 mm")))
sketch14.addConstraint(Sketcher.Constraint("Angle", 0, Q("60.000003 deg")))
sketch14.addConstraint(Sketcher.Constraint("Distance", 0, Q("4 mm")))
sketch14.addConstraint(Sketcher.Constraint("DistanceX", -1, 1, 0, 2, Q("15 mm")))
sketch14.addConstraint(Sketcher.Constraint("DistanceX", -1, 1, 6, 2, Q("41 mm")))
pocket10 = body.newObject("PartDesign::Pocket", "Pocket009")
pocket10.Profile = sketch14
pocket10.Length = 4
pocket10.Reversed = True

# Sketch on XY plane
sketch15 = body.newObject("Sketcher::SketchObject", "Sketch014")
sketch15.AttachmentSupport = (doc.getObject("XY_Plane"), [""])
sketch15.MapMode = "FlatFace"
sketch15.AttachmentOffset = App.Placement(Vector(0, 0, 24), App.Rotation())
add_polygon(sketch15, [(24, 21), (24, -12), (36, -12), (36, 21)])  # lines 0-3
sketch15.addConstraint(Sketcher.Constraint("Vertical", 0))
sketch15.addConstraint(Sketcher.Constraint("Horizontal", 1))
sketch15.addConstraint(Sketcher.Constraint("Vertical", 2))
sketch15.addConstraint(Sketcher.Constraint("Horizontal", 3))
sketch15.addConstraint(Sketcher.Constraint("DistanceY", 0, 2, 0, 1, Q("33 mm")))
sketch15.addConstraint(Sketcher.Constraint("DistanceX", 1, 1, 1, 2, Q("12.5 mm")))
sketch15.addConstraint(Sketcher.Constraint("DistanceY", 0, 2, -1, 1, Q("12 mm")))
sketch15.addConstraint(Sketcher.Constraint("DistanceX", -1, 1, 0, 2, Q("23.75 mm")))
pocket11 = body.newObject("PartDesign::Pocket", "Pocket010")
pocket11.Profile = sketch15
pocket11.Length = 12
doc.recompute()

fillet = body.newObject("PartDesign::Fillet", "Fillet")
fillet.Base = (pocket11, edges_at(pocket11, [
    (38, -14, 11.5),
    (38, -14, 11.5),
    (22, -14, 11.5),
    (22, -14, 11.5),
    (22, 23, 11.5),
    (22, 23, 11.5),
    (38, 23, 11.5),
    (38, 23, 11.5),
]))
fillet.Radius = 2
body2 = doc.addObject("PartDesign::Body", "Body001")
doc.recompute()

body.Placement = App.Placement(Vector(0, 60, 0), App.Rotation(Vector(0, 0, 1), 90))
boolean = body2.newObject("PartDesign::Boolean", "Boolean")
boolean.Type = "Fuse"
boolean.addObjects([body])

doc.recompute()
